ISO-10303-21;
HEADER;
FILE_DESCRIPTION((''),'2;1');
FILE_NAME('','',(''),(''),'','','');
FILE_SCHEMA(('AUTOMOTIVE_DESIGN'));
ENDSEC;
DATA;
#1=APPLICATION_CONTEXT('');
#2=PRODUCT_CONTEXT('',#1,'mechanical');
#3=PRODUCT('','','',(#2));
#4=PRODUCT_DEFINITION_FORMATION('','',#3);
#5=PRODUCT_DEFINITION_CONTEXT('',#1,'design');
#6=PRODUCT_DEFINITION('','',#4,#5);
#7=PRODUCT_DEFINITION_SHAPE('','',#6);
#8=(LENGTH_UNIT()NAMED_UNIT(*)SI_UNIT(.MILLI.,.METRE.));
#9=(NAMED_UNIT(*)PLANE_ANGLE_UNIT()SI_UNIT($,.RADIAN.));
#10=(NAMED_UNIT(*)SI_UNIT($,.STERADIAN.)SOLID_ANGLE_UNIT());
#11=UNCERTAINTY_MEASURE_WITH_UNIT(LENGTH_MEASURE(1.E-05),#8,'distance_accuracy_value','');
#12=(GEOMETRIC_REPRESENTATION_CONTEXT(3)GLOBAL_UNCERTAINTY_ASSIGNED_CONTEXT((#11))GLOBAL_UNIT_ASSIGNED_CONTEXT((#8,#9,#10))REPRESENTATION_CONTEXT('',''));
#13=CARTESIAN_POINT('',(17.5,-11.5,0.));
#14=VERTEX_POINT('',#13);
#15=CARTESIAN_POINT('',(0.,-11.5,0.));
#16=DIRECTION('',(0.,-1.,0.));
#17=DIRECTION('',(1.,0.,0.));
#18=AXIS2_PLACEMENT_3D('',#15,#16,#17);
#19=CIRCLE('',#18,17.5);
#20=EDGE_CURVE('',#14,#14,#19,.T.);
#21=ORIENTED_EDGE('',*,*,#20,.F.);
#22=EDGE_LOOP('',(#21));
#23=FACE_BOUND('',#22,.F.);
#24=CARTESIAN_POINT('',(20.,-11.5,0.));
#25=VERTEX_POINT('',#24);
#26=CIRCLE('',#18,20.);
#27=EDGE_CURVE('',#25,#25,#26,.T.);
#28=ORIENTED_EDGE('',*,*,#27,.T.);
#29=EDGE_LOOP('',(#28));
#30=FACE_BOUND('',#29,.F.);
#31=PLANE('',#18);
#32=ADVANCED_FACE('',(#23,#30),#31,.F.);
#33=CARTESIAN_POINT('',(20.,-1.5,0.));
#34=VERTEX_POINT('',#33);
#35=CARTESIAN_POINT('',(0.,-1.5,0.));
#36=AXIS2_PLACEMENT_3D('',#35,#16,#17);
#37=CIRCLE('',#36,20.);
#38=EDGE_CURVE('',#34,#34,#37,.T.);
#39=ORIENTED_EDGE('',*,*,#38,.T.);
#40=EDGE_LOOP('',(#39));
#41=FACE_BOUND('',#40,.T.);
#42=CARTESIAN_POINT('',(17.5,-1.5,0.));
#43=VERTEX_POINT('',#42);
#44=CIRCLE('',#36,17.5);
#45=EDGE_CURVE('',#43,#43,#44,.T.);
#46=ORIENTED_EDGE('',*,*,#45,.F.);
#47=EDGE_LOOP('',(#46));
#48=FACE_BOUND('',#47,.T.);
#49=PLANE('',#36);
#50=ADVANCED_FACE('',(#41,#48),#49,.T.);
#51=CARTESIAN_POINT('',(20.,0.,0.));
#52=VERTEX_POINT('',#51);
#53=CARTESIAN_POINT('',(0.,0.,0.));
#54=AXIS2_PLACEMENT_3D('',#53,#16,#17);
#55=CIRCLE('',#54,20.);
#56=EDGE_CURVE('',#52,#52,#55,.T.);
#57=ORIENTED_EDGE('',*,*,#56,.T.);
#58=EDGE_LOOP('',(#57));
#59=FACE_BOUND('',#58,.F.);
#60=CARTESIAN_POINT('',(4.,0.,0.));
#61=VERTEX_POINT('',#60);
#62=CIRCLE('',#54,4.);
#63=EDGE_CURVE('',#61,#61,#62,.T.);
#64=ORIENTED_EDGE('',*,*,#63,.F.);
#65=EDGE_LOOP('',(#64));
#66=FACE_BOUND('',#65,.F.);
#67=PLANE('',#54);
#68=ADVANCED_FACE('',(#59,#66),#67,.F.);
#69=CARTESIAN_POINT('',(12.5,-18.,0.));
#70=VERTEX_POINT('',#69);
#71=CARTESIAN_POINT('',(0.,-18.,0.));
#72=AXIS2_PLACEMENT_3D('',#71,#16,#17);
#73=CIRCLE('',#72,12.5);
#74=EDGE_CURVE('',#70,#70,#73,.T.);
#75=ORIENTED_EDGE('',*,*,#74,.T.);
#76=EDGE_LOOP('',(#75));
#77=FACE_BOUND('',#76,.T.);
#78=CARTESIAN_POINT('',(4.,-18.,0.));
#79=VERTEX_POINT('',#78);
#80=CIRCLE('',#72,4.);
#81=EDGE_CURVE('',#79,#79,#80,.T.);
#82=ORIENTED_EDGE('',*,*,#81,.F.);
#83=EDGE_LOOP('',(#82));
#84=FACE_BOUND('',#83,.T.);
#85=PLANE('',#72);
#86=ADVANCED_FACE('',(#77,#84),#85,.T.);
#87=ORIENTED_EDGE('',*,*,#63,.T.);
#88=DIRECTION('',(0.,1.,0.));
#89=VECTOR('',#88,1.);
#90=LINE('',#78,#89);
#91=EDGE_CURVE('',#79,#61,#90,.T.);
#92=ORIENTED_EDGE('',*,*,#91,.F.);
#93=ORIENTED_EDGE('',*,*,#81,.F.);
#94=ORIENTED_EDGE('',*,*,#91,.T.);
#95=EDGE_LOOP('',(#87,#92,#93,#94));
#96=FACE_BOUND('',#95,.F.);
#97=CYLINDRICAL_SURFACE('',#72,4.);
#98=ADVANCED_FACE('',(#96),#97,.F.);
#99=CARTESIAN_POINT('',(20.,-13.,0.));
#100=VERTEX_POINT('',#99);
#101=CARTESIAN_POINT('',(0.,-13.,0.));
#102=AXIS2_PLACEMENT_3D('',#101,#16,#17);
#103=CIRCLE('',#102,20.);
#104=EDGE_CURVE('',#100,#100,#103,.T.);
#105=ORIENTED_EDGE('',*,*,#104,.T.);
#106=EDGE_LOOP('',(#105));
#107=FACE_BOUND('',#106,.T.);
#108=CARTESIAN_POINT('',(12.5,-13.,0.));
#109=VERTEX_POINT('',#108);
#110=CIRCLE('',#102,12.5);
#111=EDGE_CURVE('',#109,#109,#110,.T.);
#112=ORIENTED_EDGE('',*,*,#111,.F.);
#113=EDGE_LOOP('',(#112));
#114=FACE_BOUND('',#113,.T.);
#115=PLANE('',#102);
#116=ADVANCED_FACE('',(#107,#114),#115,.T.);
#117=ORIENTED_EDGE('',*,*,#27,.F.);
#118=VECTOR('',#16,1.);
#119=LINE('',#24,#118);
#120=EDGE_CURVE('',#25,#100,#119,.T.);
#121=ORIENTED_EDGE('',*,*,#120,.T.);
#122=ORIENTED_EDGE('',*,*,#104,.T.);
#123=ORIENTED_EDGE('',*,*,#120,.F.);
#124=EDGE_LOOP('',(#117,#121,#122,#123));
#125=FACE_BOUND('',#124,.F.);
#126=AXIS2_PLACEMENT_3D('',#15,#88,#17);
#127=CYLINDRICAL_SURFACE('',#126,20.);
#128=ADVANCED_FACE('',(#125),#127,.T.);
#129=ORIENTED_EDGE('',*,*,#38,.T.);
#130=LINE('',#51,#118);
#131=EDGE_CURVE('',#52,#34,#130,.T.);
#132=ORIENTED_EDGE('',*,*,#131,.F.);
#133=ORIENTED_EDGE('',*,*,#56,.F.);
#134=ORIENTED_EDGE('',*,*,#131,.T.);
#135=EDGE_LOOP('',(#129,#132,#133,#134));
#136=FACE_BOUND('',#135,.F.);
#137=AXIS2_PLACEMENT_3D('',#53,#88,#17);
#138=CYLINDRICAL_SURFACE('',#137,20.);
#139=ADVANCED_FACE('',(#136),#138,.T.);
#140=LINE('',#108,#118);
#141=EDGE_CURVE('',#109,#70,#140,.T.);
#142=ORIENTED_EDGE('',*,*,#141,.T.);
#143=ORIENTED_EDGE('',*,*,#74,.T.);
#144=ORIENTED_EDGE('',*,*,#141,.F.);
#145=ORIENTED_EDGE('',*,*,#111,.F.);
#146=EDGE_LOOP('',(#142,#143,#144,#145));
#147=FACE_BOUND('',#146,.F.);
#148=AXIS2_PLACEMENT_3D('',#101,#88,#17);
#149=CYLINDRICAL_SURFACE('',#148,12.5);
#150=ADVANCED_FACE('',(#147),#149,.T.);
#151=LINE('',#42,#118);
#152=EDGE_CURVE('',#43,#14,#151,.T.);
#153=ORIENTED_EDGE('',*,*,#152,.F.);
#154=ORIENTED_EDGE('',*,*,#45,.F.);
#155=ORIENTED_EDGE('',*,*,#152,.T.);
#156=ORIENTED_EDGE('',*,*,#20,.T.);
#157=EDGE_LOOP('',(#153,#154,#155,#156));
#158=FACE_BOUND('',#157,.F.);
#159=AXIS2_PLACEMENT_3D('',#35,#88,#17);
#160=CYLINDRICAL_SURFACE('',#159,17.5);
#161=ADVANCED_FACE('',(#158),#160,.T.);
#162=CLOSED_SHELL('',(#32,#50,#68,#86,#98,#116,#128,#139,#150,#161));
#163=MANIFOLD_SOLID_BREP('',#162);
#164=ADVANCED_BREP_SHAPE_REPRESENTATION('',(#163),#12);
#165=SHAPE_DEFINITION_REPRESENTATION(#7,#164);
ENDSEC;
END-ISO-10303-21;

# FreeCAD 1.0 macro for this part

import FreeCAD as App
import Part
import Sketcher

doc = App.newDocument("Part")
params = doc.addObject("Spreadsheet::Sheet", "Params")
for row, (alias, value) in enumerate([
    ("sketch1_diameter", "40 mm"),
    ("pad1_length", "1.5 mm"),
    ("sketch2_diameter", "35 mm"),
    ("pad2_length", "10 mm"),
    ("sketch3_diameter", "40 mm"),
    ("pad3_length", "1.5 mm"),
    ("sketch4_diameter", "25 mm"),
    ("pad4_length", "5 mm"),
    ("sketch5_diameter", "8 mm"),
    ("pocket1_length", "20 mm"),
], start=1):
    params.set(f"A{row}", alias)
    params.set(f"B{row}", "=" + value)
    params.setAlias(f"B{row}", alias)

body = doc.addObject("PartDesign::Body", "Body")

# Sketch on XZ plane
sketch1 = body.newObject("Sketcher::SketchObject", "Sketch")
sketch1.AttachmentSupport = (doc.getObject("XZ_Plane"), [""])
sketch1.MapMode = "FlatFace"
sketch1.addGeometry(Part.Circle(App.Vector(0, 0, 0), App.Vector(0, 0, 1), 20), False)
sketch1.addConstraint([
    Sketcher.Constraint("Coincident", 0, 3, -1, 1),
    Sketcher.Constraint("Diameter", 0, 40.0),
])
sketch1.setExpression("Constraints[1]", "Params.sketch1_diameter")
pad1 = body.newObject("PartDesign::Pad", "Pad")
pad1.Profile = sketch1
pad1.setExpression("Length", "Params.pad1_length")

# Sketch on XZ plane
sketch2 = body.newObject("Sketcher::SketchObject", "Sketch001")
sketch2.AttachmentSupport = (doc.getObject("XZ_Plane"), [""])
sketch2.MapMode = "FlatFace"
sketch2.AttachmentOffset = App.Placement(App.Vector(0, 0, 1.5), App.Rotation())
sketch2.addGeometry(Part.Circle(App.Vector(0, 0, 0), App.Vector(0, 0, 1), 18), False)
sketch2.addConstraint([
    Sketcher.Constraint("Coincident", 0, 3, -1, 1),
    Sketcher.Constraint("Diameter", 0, 35.0),
])
sketch2.setExpression("Constraints[1]", "Params.sketch2_diameter")
pad2 = body.newObject("PartDesign::Pad", "Pad001")
pad2.Profile = sketch2
pad2.setExpression("Length", "Params.pad2_length")

# Sketch on XZ plane
sketch3 = body.newObject("Sketcher::SketchObject", "Sketch002")
sketch3.AttachmentSupport = (doc.getObject("XZ_Plane"), [""])
sketch3.MapMode = "FlatFace"
sketch3.AttachmentOffset = App.Placement(App.Vector(0, 0, 11.5), App.Rotation())
sketch3.addGeometry(Part.Circle(App.Vector(0, 0, 0), App.Vector(0, 0, 1), 20), False)
sketch3.addConstraint([
    Sketcher.Constraint("Coincident", 0, 3, -1, 1),
    Sketcher.Constraint("Diameter", 0, 40.0),
])
sketch3.setExpression("Constraints[1]", "Params.sketch3_diameter")
pad3 = body.newObject("PartDesign::Pad", "Pad002")
pad3.Profile = sketch3
pad3.setExpression("Length", "Params.pad3_length")

# Sketch on XZ plane
sketch4 = body.newObject("Sketcher::SketchObject", "Sketch003")
sketch4.AttachmentSupport = (doc.getObject("XZ_Plane"), [""])
sketch4.MapMode = "FlatFace"
sketch4.AttachmentOffset = App.Placement(App.Vector(0, 0, 13), App.Rotation())
sketch4.addGeometry(Part.Circle(App.Vector(0, 0, 0), App.Vector(0, 0, 1), 12), False)
sketch4.addConstraint([
    Sketcher.Constraint("Coincident", 0, 3, -1, 1),
    Sketcher.Constraint("Diameter", 0, 25.0),
])
sketch4.setExpression("Constraints[1]", "Params.sketch4_diameter")
pad4 = body.newObject("PartDesign::Pad", "Pad003")
pad4.Profile = sketch4
pad4.setExpression("Length", "Params.pad4_length")

# Sketch on XZ plane
sketch5 = body.newObject("Sketcher::SketchObject", "Sketch004")
sketch5.AttachmentSupport = (doc.getObject("XZ_Plane"), [""])
sketch5.MapMode = "FlatFace"
sketch5.AttachmentOffset = App.Placement(App.Vector(0, 0, 18), App.Rotation())
sketch5.addGeometry(Part.Circle(App.Vector(0, 0, 0), App.Vector(0, 0, 1), 4), False)
sketch5.addConstraint([
    Sketcher.Constraint("Coincident", 0, 3, -1, 1),
    Sketcher.Constraint("Diameter", 0, 8.0),
])
sketch5.setExpression("Constraints[1]", "Params.sketch5_diameter")
pocket1 = body.newObject("PartDesign::Pocket", "Pocket")
pocket1.Profile = sketch5
pocket1.setExpression("Length", "Params.pocket1_length")

doc.recompute()
